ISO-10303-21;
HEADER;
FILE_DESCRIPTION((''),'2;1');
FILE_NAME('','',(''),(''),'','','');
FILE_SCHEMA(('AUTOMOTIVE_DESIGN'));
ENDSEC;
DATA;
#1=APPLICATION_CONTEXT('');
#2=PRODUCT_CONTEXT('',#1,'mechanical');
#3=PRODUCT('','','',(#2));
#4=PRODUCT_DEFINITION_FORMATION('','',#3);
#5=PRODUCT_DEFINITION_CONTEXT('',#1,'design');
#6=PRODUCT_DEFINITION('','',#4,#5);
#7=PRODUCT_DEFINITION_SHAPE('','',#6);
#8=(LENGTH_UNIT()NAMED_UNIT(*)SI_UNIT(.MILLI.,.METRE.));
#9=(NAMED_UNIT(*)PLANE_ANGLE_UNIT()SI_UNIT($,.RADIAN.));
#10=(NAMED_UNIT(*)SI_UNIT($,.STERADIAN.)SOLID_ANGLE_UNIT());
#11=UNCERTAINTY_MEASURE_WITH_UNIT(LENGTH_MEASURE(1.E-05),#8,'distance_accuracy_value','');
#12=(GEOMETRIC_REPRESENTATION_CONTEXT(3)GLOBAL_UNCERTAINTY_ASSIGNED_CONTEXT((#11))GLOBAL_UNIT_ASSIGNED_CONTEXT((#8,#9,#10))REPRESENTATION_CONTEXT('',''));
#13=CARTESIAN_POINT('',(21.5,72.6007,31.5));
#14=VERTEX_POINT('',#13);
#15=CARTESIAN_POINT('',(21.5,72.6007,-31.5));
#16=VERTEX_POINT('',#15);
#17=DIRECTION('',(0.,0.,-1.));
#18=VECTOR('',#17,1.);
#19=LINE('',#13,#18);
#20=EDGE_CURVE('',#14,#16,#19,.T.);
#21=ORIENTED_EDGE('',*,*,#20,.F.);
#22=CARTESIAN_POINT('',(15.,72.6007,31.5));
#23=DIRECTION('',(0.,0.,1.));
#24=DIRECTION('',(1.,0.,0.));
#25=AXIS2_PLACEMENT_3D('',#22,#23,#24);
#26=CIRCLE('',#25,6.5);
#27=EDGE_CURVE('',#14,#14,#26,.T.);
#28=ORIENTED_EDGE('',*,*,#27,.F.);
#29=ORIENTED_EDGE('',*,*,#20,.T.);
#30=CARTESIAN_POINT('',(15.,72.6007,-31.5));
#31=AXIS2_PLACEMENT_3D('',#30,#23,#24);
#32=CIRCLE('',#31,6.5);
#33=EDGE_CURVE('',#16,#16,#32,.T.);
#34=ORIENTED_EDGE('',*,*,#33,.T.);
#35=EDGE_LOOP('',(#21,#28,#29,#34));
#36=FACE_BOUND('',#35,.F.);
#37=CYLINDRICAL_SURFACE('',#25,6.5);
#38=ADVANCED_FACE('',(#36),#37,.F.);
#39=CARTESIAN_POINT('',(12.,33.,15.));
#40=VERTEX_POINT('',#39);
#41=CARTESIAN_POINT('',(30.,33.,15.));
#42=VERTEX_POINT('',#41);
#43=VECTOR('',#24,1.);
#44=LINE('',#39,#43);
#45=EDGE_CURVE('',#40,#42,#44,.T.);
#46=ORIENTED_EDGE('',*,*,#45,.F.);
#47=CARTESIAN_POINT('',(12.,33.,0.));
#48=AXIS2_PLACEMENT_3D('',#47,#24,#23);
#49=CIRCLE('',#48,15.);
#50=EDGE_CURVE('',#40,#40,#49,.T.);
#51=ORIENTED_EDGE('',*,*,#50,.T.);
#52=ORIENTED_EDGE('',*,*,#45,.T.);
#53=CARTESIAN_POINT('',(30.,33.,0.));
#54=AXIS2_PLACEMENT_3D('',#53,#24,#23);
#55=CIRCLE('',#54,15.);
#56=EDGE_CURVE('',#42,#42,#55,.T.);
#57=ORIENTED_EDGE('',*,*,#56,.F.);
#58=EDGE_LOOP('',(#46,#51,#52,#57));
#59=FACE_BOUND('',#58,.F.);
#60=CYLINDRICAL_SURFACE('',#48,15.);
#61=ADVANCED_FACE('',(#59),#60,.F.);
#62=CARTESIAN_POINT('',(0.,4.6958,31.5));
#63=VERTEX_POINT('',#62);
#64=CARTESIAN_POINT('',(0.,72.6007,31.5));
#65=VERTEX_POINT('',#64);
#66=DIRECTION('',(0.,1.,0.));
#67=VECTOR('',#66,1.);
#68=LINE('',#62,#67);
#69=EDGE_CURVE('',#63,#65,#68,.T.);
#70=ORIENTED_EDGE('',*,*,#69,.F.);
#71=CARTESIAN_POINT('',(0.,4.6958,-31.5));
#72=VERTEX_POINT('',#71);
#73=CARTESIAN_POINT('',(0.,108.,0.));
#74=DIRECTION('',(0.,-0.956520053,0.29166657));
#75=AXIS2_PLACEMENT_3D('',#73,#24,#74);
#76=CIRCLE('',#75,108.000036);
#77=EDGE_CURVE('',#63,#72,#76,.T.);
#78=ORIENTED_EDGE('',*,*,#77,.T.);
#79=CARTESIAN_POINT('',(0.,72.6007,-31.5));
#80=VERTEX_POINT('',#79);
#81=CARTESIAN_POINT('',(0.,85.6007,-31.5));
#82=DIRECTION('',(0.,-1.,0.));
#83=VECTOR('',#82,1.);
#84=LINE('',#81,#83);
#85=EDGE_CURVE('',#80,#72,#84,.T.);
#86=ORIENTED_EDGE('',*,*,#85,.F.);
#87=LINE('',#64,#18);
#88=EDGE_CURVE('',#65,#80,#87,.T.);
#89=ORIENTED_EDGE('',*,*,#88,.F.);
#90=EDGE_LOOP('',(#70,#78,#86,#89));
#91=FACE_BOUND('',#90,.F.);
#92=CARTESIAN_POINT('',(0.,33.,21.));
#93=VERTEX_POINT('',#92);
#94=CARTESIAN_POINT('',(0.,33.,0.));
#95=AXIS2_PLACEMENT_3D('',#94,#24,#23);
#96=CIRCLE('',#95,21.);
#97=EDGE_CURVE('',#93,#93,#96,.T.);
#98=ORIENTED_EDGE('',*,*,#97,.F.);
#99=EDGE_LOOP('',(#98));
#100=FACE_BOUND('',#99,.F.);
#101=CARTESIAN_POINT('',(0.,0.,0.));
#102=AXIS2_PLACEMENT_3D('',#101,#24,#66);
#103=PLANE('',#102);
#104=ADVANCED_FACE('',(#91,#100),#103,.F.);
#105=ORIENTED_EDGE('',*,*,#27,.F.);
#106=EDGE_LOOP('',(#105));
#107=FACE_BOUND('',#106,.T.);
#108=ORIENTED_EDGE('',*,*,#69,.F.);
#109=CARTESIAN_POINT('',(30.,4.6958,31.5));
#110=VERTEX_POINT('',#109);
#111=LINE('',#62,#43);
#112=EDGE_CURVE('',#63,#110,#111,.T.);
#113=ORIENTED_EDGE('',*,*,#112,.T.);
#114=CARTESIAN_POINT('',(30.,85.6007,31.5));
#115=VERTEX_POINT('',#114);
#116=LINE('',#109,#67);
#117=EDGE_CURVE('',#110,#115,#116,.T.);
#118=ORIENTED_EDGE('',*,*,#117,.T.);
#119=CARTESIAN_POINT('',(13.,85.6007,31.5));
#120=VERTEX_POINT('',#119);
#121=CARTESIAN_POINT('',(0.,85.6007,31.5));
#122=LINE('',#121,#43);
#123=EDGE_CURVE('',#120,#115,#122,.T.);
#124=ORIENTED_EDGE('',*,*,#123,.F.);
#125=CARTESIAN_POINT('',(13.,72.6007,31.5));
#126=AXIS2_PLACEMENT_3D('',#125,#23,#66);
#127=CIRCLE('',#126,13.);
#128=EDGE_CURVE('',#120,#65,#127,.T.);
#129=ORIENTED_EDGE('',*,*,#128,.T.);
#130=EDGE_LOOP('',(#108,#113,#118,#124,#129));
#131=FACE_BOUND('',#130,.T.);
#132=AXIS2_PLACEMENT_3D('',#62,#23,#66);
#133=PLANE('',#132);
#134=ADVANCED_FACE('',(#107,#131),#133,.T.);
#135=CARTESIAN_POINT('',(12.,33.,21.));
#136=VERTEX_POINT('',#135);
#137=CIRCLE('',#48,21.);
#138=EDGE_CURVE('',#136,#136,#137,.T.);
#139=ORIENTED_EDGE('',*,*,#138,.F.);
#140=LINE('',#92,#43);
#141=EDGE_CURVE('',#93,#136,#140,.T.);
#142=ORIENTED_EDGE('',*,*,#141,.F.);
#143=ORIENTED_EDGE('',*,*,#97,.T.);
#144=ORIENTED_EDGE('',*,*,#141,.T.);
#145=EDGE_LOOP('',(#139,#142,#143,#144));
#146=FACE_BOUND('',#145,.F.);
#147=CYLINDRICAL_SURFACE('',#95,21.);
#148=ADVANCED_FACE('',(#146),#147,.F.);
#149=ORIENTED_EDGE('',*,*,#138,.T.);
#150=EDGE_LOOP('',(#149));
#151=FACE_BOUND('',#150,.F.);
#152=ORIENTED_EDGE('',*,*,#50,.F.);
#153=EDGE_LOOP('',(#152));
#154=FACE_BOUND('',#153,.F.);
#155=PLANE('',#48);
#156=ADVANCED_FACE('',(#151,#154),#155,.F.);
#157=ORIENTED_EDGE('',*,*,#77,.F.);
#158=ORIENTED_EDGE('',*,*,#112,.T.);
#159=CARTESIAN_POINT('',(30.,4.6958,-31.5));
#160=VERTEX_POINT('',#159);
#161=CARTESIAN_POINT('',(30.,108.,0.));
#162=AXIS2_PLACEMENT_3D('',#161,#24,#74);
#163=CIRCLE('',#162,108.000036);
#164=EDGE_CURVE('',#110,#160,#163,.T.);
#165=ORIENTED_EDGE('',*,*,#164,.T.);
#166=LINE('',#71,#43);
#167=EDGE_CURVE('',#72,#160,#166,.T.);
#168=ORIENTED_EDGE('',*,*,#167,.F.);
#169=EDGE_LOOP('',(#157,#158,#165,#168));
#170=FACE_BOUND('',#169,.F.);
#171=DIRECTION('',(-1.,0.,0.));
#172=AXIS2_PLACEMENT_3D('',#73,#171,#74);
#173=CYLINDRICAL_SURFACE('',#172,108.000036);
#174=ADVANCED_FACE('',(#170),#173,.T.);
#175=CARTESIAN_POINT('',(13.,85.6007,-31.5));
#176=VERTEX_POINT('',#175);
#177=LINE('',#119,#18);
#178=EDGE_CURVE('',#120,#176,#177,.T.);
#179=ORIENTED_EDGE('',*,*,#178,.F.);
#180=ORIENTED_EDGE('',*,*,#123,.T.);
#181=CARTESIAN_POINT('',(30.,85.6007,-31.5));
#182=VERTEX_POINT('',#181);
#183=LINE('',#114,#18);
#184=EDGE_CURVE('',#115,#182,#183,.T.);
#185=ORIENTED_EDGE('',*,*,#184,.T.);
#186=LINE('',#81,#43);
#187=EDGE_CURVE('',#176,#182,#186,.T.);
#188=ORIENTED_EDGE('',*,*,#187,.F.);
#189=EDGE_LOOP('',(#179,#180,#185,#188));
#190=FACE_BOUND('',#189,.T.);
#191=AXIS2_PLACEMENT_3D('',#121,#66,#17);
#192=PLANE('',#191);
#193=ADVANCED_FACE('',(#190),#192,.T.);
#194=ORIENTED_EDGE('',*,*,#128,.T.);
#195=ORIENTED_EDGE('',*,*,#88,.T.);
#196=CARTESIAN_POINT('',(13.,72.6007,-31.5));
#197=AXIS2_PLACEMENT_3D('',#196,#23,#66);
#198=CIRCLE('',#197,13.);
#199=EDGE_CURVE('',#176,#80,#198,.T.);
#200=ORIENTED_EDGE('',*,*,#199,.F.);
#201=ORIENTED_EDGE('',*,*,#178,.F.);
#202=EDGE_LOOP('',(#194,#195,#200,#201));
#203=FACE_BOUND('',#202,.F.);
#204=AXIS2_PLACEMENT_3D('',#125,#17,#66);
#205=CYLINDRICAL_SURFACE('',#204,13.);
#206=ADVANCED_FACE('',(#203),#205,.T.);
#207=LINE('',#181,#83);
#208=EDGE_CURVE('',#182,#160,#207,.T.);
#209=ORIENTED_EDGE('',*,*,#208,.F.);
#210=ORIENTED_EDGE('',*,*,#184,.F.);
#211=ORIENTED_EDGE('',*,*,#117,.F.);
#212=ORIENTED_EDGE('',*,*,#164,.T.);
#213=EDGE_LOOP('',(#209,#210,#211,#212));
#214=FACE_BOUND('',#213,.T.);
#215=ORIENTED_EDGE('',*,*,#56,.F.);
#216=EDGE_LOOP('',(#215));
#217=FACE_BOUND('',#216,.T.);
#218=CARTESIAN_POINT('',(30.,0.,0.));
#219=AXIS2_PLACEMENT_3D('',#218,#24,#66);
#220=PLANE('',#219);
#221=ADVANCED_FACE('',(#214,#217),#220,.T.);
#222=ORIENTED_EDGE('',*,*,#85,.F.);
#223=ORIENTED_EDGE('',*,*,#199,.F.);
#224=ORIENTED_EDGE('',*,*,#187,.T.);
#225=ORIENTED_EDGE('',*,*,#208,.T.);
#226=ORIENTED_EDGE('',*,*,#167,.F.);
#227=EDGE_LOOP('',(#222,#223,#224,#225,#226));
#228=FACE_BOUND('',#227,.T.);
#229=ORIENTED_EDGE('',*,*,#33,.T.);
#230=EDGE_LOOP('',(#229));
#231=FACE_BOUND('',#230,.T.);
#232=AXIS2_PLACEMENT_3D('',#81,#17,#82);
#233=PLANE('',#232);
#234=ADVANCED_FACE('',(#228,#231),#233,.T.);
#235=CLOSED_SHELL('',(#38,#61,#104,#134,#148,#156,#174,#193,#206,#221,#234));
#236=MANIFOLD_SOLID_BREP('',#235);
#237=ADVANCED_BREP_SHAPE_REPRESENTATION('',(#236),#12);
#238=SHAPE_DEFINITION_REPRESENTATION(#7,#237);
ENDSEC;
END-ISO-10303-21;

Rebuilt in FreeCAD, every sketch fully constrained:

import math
import FreeCAD as App
import Part
import Sketcher
from FreeCAD import Vector
Q = App.Units.Quantity


def edges_at(feature, points):
    """Names of the edges that pass closest to the given points."""
    edges = feature.Shape.Edges
    near = lambda p: min(range(len(edges)), key=lambda i: edges[i].distToShape(Part.Vertex(*p))[0])
    return sorted({f"Edge{near(p) + 1}" for p in points})

doc = App.newDocument("Part")
body = doc.addObject("PartDesign::Body", "Body")

# Sketch on YZ plane
sketch1 = body.newObject("Sketcher::SketchObject", "Sketch")
sketch1.AttachmentSupport = (doc.getObject("YZ_Plane"), [""])
sketch1.MapMode = "FlatFace"
sketch1.addGeometry(Part.LineSegment(Vector(85.6007, 31.5, 0), Vector(4.6958, 31.5, 0)), False)
sketch1.addGeometry(Part.ArcOfCircle(Part.Circle(Vector(108, 0, 0), Vector(0, 0, 1), 108.000036), math.radians(163.042242), math.radians(196.957758)), False)
sketch1.addGeometry(Part.LineSegment(Vector(4.6958, -31.5, 0), Vector(85.6007, -31.5, 0)), False)
sketch1.addGeometry(Part.LineSegment(Vector(85.6007, -31.5, 0), Vector(85.6007, 31.5, 0)), False)
sketch1.addConstraint(Sketcher.Constraint("Coincident", 0, 2, 1, 1))
sketch1.addConstraint(Sketcher.Constraint("Coincident", 1, 2, 2, 1))
sketch1.addConstraint(Sketcher.Constraint("Coincident", 2, 2, 3, 1))
sketch1.addConstraint(Sketcher.Constraint("Coincident", 3, 2, 0, 1))
sketch1.addConstraint(Sketcher.Constraint("Horizontal", 0))
sketch1.addConstraint(Sketcher.Constraint("Horizontal", 2))
sketch1.addConstraint(Sketcher.Constraint("Vertical", 3))
sketch1.addConstraint(Sketcher.Constraint("Symmetric", 0, 2, 1, 2, -1))
sketch1.addConstraint(Sketcher.Constraint("Radius", 1, Q("108 mm")))
sketch1.addConstraint(Sketcher.Constraint("DistanceY", 3, 1, 3, 2, Q("63 mm")))
sketch1.addConstraint(Sketcher.Constraint("DistanceX", -1, 1, 1, 3, Q("108 mm")))
sketch1.addConstraint(Sketcher.Constraint("DistanceX", 0, 2, 0, 1, Q("80.905 mm")))
pad1 = body.newObject("PartDesign::Pad", "Pad")
pad1.Profile = sketch1
pad1.Length = 30
doc.recompute()

fillet = body.newObject("PartDesign::Fillet", "Fillet")
fillet.Base = (pad1, edges_at(pad1, [(0, 85.601, 0)]))
fillet.Radius = 13

# Sketch on XY plane
sketch2 = body.newObject("Sketcher::SketchObject", "Sketch001")
sketch2.AttachmentSupport = (doc.getObject("XY_Plane"), [""])
sketch2.MapMode = "FlatFace"
sketch2.AttachmentOffset = App.Placement(Vector(0, 0, 31.5), App.Rotation())
sketch2.addGeometry(Part.Circle(Vector(15, 72.6007, 0), Vector(0, 0, 1), 6.5), False)
sketch2.addConstraint(Sketcher.Constraint("Diameter", 0, Q("13 mm")))
sketch2.addConstraint(Sketcher.Constraint("DistanceX", -1, 1, 0, 3, Q("15 mm")))
sketch2.addConstraint(Sketcher.Constraint("DistanceY", -1, 1, 0, 3, Q("72.6007 mm")))
pocket1 = body.newObject("PartDesign::Pocket", "Pocket")
pocket1.Profile = sketch2
pocket1.Type = "ThroughAll"

# Sketch on YZ plane
sketch3 = body.newObject("Sketcher::SketchObject", "Sketch002")
sketch3.AttachmentSupport = (doc.getObject("YZ_Plane"), [""])
sketch3.MapMode = "FlatFace"
sketch3.addGeometry(Part.Circle(Vector(33, 0, 0), Vector(0, 0, 1), 15), False)
sketch3.addConstraint(Sketcher.Constraint("PointOnObject", 0, 3, -1))
sketch3.addConstraint(Sketcher.Constraint("Diameter", 0, Q("30 mm")))
sketch3.addConstraint(Sketcher.Constraint("DistanceX", -1, 1, 0, 3, Q("33 mm")))
doc.recompute()
hole = body.newObject("PartDesign::Hole", "Hole")
hole.Profile = sketch3
hole.ThreadType = "None"
hole.Diameter = 30
hole.DepthType = "ThroughAll"
hole.HoleCutType = "Counterbore"
hole.HoleCutDiameter = 42
hole.HoleCutDepth = 12
hole.Reversed = True

doc.recompute()
